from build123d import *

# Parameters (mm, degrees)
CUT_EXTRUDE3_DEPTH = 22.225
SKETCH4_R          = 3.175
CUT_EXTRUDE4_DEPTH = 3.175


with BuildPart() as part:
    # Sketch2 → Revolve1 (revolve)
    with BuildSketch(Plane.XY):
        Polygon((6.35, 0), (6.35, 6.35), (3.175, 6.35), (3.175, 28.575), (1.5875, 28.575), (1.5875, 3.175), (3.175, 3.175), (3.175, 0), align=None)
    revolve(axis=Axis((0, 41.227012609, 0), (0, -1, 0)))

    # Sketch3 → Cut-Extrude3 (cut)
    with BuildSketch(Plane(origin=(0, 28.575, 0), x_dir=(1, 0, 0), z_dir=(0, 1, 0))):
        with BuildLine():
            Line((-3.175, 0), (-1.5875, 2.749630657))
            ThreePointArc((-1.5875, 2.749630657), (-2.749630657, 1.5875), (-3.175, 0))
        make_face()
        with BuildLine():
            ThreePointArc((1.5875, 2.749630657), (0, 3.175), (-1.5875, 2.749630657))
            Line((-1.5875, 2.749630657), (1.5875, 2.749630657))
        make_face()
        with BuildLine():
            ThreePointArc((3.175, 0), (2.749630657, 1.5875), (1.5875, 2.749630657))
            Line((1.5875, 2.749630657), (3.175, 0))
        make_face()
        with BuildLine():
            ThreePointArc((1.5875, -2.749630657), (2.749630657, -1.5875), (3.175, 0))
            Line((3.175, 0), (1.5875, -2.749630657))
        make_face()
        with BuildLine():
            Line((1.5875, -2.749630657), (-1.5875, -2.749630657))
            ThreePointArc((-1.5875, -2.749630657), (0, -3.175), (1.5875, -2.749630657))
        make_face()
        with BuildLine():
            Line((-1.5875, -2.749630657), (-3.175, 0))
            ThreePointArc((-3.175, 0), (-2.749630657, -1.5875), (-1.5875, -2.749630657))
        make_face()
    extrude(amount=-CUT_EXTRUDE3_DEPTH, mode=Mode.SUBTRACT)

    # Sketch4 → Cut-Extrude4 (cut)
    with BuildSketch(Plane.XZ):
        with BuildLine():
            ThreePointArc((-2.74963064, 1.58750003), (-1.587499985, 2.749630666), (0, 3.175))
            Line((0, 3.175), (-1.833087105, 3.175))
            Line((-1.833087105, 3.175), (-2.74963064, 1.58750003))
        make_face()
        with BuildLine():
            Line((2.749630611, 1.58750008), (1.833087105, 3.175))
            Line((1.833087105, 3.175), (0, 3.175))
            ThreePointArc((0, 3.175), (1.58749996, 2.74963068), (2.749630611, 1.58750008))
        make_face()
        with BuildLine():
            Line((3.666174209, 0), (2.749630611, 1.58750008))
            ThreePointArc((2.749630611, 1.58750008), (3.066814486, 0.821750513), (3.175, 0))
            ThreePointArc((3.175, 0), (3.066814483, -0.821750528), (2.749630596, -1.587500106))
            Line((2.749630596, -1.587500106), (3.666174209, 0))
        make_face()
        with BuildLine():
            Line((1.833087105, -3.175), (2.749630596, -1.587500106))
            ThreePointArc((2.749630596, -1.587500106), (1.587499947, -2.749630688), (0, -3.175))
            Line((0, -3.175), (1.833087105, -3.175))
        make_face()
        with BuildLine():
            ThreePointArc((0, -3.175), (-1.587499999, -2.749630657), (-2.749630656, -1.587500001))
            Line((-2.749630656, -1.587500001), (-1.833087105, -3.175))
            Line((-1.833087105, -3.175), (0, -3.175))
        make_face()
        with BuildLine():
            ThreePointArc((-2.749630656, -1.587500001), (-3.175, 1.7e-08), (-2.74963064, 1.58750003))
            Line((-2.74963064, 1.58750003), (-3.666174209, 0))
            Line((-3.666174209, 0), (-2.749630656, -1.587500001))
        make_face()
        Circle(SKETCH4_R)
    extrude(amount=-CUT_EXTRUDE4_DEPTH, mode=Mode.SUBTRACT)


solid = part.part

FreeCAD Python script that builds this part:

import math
import FreeCAD as App
import Part
import Sketcher

V = App.Vector
Q = App.Units.Quantity


def add_polygon(sketch, points):
    """Adds a closed chain of lines whose ends are joined by coincident constraints."""
    first, n = sketch.GeometryCount, len(points)
    for a, b in zip(points, points[1:] + points[:1]):
        sketch.addGeometry(Part.LineSegment(App.Vector(*a, 0), App.Vector(*b, 0)), False)
    for i in range(n):
        sketch.addConstraint(Sketcher.Constraint("Coincident", first + i, 2, first + (i + 1) % n, 1))

doc = App.newDocument("Part")
body = doc.addObject("PartDesign::Body", "Body")

sketch1 = body.newObject("Sketcher::SketchObject", "Sketch")
sketch1.AttachmentSupport = (doc.getObject("XY_Plane"), [""])
sketch1.MapMode = "FlatFace"
add_polygon(sketch1, [(6.3, 0), (6.3, 6.3), (3.2, 6.3), (3.2, 28.6), (1.6, 28.6), (1.6, 3.2), (3.2, 3.2), (3.2, 0)])
sketch1.addConstraint([
    Sketcher.Constraint("Vertical", 0),
    Sketcher.Constraint("Horizontal", 1),
    Sketcher.Constraint("Vertical", 2),
    Sketcher.Constraint("Horizontal", 3),
    Sketcher.Constraint("Vertical", 4),
    Sketcher.Constraint("Horizontal", 5),
    Sketcher.Constraint("Vertical", 6),
    Sketcher.Constraint("Horizontal", 7),
    Sketcher.Constraint("PointOnObject", 6, 2, -1),
    Sketcher.Constraint("Vertical", 2, 2, 5, 2),
    Sketcher.Constraint("Equal", 7, 6),
    Sketcher.Constraint("DistanceY", 4, 2, 4, 1, Q("1 in")),
    Sketcher.Constraint("DistanceY", 0, 1, 0, 2, Q("0.25 in")),
    Sketcher.Constraint("DistanceX", 1, 2, 1, 1, Q("0.125 in")),
    Sketcher.Constraint("DistanceX", 3, 2, 3, 1, Q("0.0625 in")),
    Sketcher.Constraint("DistanceX", -1, 1, 0, 2, Q("0.25 in")),
])
revolution = body.newObject("PartDesign::Revolution", "Revolution")
revolution.Profile = sketch1
revolution.ReferenceAxis = (sketch1, ["V_Axis"])
revolution.Angle = 360

sketch2 = body.newObject("Sketcher::SketchObject", "Sketch001")
sketch2.AttachmentSupport = (doc.getObject("XZ_Plane"), [""])
sketch2.MapMode = "FlatFace"
sketch2.AttachmentOffset = App.Placement(V(0, 0, -1.125 * 25.4), App.Rotation())
sketch2.addGeometry([
    Part.LineSegment(V(-3.2, 0, 0), V(-1.6, -2.7, 0)),
    Part.ArcOfCircle(Part.Circle(V(0, 0, 0), V(0, 0, 1), 3.2), math.radians(180), math.radians(240)),
    Part.ArcOfCircle(Part.Circle(V(0, 0, 0), V(0, 0, 1), 3.2), math.radians(-120), math.radians(-60)),
    Part.LineSegment(V(-1.6, -2.7, 0), V(1.6, -2.7, 0)),
    Part.ArcOfCircle(Part.Circle(V(0, 0, 0), V(0, 0, 1), 3.2), math.radians(-60), math.radians(0)),
    Part.LineSegment(V(1.6, -2.7, 0), V(3.2, 0, 0)),
    Part.ArcOfCircle(Part.Circle(V(0, 0, 0), V(0, 0, 1), 3.2), math.radians(0), math.radians(60)),
    Part.LineSegment(V(3.2, 0, 0), V(1.6, 2.7, 0)),
    Part.LineSegment(V(1.6, 2.7, 0), V(-1.6, 2.7, 0)),
    Part.ArcOfCircle(Part.Circle(V(0, 0, 0), V(0, 0, 1), 3.2), math.radians(60), math.radians(120)),
    Part.LineSegment(V(-1.6, 2.7, 0), V(-3.2, 0, 0)),
    Part.ArcOfCircle(Part.Circle(V(0, 0, 0), V(0, 0, 1), 3.2), math.radians(120), math.radians(180)),
], False)
sketch2.addConstraint([
    Sketcher.Constraint("Coincident", 0, 1, 1, 1),
    Sketcher.Constraint("Coincident", 1, 2, 0, 2),
    Sketcher.Constraint("Coincident", 2, 1, 3, 1),
    Sketcher.Constraint("Coincident", 3, 2, 2, 2),
    Sketcher.Constraint("Coincident", 4, 1, 5, 1),
    Sketcher.Constraint("Coincident", 5, 2, 4, 2),
    Sketcher.Constraint("Coincident", 6, 1, 7, 1),
    Sketcher.Constraint("Coincident", 7, 2, 6, 2),
    Sketcher.Constraint("Coincident", 8, 1, 9, 1),
    Sketcher.Constraint("Coincident", 9, 2, 8, 2),
    Sketcher.Constraint("Coincident", 10, 1, 11, 1),
    Sketcher.Constraint("Coincident", 11, 2, 10, 2),
    Sketcher.Constraint("Horizontal", 3),
    Sketcher.Constraint("Horizontal", 8),
    Sketcher.Constraint("Coincident", 1, 3, -1, 1),
    Sketcher.Constraint("Coincident", 2, 3, -1, 1),
    Sketcher.Constraint("Coincident", 4, 3, -1, 1),
    Sketcher.Constraint("Coincident", 6, 3, -1, 1),
    Sketcher.Constraint("Coincident", 9, 3, -1, 1),
    Sketcher.Constraint("Coincident", 11, 3, -1, 1),
    Sketcher.Constraint("Coincident", 2, 1, 1, 2),
    Sketcher.Constraint("Coincident", 4, 1, 3, 2),
    Sketcher.Constraint("Coincident", 6, 1, 5, 2),
    Sketcher.Constraint("Coincident", 8, 1, 7, 2),
    Sketcher.Constraint("Coincident", 10, 1, 9, 2),
    Sketcher.Constraint("PointOnObject", 0, 1, -1),
    Sketcher.Constraint("PointOnObject", 5, 2, -1),
    Sketcher.Constraint("PointOnObject", 11, 2, -1),
    Sketcher.Constraint("Parallel", 0, 7),
    Sketcher.Constraint("Angle", 0, Q("-60 deg")),
    Sketcher.Constraint("Radius", 1, Q("0.125 in")),
])
pocket1 = body.newObject("PartDesign::Pocket", "Pocket")
pocket1.Profile = sketch2
pocket1.Length = Q("0.875 in")
pocket1.Reversed = True

sketch3 = body.newObject("Sketcher::SketchObject", "Sketch002")
sketch3.AttachmentSupport = (doc.getObject("XZ_Plane"), [""])
sketch3.MapMode = "FlatFace"
add_polygon(sketch3, [(-1.8, 3.2), (-2.7, 1.6), (-3.7, 0), (-2.7, -1.6), (-1.8, -3.2), (1.8, -3.2), (2.7, -1.6), (3.7, 0), (2.7, 1.6), (1.8, 3.2)])
sketch3.addConstraint([
    Sketcher.Constraint("Horizontal", 4),
    Sketcher.Constraint("Horizontal", 9),
    Sketcher.Constraint("Symmetric", 0, 2, 5, 2, -1, 1),
    Sketcher.Constraint("Symmetric", 1, 2, 6, 2, -1, 1),
    Sketcher.Constraint("Symmetric", 2, 2, 7, 2, -1, 1),
    Sketcher.Constraint("Symmetric", 3, 2, 8, 2, -1, 1),
    Sketcher.Constraint("Symmetric", 2, 2, 5, 2, -2),
    Sketcher.Constraint("PointOnObject", 1, 2, -1),
    Sketcher.Constraint("Parallel", 0, 1),
    Sketcher.Constraint("Parallel", 2, 3),
    Sketcher.Constraint("Parallel", 1, 5),
    Sketcher.Constraint("Equal", 0, 1),
    Sketcher.Constraint("Angle", 0, Q("-120 deg")),
    Sketcher.Constraint("DistanceY", -1, 1, 0, 2, Q("0.0625 in")),
    Sketcher.Constraint("DistanceX", 4, 1, 4, 2, 3.666174),
])
pocket2 = body.newObject("PartDesign::Pocket", "Pocket001")
pocket2.Profile = sketch3
pocket2.Length = Q("0.125 in")

doc.recompute()
